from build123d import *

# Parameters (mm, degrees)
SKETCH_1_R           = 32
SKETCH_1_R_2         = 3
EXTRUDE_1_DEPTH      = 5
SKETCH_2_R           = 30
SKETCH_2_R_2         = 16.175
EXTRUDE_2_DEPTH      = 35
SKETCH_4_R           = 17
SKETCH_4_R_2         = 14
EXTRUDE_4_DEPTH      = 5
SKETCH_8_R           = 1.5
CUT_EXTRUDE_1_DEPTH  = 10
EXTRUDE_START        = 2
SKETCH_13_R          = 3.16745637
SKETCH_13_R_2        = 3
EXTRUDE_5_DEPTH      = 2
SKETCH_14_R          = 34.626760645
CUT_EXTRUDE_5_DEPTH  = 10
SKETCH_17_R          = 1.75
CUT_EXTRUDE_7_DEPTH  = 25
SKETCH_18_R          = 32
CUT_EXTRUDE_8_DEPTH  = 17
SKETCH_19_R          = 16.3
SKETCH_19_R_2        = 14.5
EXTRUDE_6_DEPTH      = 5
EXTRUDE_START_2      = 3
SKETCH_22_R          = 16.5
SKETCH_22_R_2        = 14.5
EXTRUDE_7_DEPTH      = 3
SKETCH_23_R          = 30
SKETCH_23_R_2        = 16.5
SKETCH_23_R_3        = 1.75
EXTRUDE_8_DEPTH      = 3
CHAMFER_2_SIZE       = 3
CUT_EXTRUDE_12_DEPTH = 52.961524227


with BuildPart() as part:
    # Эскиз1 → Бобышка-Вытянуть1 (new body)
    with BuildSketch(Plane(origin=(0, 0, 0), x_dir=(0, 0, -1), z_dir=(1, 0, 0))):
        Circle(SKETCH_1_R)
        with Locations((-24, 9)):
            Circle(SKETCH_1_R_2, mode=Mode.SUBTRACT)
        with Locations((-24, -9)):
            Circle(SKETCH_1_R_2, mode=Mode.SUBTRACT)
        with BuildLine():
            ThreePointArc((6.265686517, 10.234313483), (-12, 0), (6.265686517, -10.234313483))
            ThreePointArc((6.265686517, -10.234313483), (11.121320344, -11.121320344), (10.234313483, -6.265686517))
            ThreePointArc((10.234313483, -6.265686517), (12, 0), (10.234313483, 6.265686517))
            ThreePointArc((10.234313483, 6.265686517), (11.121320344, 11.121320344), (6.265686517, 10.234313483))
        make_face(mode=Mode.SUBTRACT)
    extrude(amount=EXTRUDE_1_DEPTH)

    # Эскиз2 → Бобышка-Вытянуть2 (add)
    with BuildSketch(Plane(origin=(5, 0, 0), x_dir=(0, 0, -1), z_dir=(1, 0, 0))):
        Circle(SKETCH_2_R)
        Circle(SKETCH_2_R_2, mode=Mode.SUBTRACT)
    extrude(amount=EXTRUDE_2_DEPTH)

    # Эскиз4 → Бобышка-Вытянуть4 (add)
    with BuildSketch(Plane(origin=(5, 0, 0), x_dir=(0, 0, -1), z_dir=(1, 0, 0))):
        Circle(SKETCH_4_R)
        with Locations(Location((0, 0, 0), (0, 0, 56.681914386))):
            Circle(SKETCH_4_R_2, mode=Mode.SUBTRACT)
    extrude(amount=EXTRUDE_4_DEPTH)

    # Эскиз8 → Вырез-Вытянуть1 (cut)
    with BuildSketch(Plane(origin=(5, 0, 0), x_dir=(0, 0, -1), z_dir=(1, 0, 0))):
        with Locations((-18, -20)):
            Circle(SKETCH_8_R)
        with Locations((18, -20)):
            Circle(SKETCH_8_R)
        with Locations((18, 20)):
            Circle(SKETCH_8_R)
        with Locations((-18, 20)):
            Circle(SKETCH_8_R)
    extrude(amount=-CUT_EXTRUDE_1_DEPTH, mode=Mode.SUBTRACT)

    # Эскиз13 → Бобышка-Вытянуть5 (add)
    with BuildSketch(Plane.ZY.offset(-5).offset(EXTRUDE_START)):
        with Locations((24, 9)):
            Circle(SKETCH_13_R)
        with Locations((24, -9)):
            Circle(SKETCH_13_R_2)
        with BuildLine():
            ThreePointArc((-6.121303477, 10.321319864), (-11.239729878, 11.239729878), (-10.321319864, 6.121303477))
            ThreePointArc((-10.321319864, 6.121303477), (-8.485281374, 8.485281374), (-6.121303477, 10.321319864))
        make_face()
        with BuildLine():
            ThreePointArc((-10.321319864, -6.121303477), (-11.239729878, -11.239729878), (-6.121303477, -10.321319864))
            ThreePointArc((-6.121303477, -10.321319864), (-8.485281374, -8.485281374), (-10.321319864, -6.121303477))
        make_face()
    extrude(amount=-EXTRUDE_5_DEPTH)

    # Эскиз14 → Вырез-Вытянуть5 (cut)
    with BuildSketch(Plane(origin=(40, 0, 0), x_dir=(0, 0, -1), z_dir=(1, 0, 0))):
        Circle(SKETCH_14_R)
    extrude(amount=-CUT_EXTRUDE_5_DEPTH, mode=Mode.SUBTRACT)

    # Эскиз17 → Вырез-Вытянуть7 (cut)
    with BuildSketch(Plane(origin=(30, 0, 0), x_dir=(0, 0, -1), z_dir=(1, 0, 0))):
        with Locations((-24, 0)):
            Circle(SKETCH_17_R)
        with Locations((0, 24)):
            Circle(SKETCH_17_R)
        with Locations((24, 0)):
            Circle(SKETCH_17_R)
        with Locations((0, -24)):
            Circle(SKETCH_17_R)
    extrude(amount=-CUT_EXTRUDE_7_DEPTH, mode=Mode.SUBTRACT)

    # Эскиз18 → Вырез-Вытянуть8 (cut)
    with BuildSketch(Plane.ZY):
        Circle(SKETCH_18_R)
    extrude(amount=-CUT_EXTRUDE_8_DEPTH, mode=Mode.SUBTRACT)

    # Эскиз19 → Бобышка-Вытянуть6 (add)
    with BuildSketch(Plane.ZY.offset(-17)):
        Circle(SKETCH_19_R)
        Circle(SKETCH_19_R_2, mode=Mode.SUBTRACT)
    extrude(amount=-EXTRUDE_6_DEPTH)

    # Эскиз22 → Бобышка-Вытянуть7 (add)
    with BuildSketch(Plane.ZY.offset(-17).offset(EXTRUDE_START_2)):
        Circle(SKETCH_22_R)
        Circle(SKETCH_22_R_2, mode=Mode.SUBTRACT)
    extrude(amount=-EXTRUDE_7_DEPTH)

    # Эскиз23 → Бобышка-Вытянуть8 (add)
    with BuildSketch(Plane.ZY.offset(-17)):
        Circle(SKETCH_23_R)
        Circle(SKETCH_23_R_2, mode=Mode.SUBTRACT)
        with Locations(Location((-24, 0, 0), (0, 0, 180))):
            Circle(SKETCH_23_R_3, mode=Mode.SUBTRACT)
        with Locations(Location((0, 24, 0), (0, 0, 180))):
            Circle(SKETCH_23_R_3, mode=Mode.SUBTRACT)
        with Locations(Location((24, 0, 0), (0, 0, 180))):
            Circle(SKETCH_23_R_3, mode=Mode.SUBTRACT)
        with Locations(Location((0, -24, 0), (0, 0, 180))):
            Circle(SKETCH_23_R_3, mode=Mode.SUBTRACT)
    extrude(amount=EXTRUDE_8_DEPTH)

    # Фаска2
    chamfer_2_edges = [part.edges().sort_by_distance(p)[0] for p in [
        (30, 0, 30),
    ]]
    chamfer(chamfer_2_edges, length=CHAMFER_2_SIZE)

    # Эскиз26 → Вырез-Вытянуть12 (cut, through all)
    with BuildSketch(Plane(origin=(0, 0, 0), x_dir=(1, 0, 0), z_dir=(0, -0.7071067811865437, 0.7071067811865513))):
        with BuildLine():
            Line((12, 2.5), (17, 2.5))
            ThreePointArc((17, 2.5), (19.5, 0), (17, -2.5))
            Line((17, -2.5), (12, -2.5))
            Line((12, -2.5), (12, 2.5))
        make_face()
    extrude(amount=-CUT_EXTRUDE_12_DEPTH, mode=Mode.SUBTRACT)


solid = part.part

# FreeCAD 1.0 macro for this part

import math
import FreeCAD as App
import Part
import Sketcher
from FreeCAD import Vector


def edges_at(feature, points):
    """Names of the edges that pass closest to the given points."""
    edges = feature.Shape.Edges
    near = lambda p: min(range(len(edges)), key=lambda i: edges[i].distToShape(Part.Vertex(*p))[0])
    return sorted({f"Edge{near(p) + 1}" for p in points})

doc = App.newDocument("Part")
body = doc.addObject("PartDesign::Body", "Body")

# Sketch on YZ plane
sketch1 = body.newObject("Sketcher::SketchObject", "Sketch")
sketch1.AttachmentSupport = (doc.getObject("YZ_Plane"), [""])
sketch1.MapMode = "FlatFace"
sketch1.addGeometry([
    Part.Circle(Vector(0, 0, 0), Vector(0, 0, 1), 32),  # 0
    Part.Circle(Vector(-9, 24, 0), Vector(0, 0, 1), 3),  # 1
    Part.Circle(Vector(9, 24, 0), Vector(0, 0, 1), 3),  # 2
    Part.ArcOfCircle(Part.Circle(Vector(0, 0, 0), Vector(0, 0, 1), 12), math.radians(-31), math.radians(211)),  # 3
    Part.ArcOfCircle(Part.Circle(Vector(9, -9, 0), Vector(0, 0, 1), 3), math.radians(-156), math.radians(66)),  # 4
    Part.ArcOfCircle(Part.Circle(Vector(0, 0, 0), Vector(0, 0, 1), 12), math.radians(-121), math.radians(-59)),  # 5
    Part.ArcOfCircle(Part.Circle(Vector(-9, -9, 0), Vector(0, 0, 1), 3), math.radians(114), math.radians(336)),  # 6
], False)
sketch1.addConstraint([
    Sketcher.Constraint("Coincident", 3, 1, 4, 2),
    Sketcher.Constraint("Coincident", 4, 1, 5, 2),
    Sketcher.Constraint("Coincident", 5, 1, 6, 2),
    Sketcher.Constraint("Coincident", 6, 1, 3, 2),
    Sketcher.Constraint("Coincident", 0, 3, -1, 1),
    Sketcher.Constraint("Coincident", 3, 3, -1, 1),
    Sketcher.Constraint("Coincident", 5, 3, -1, 1),
    Sketcher.Constraint("Equal", 1, 2),
    Sketcher.Constraint("Equal", 2, 4),
    Sketcher.Constraint("Equal", 3, 5),
    Sketcher.Constraint("Equal", 4, 6),
    Sketcher.Constraint("Symmetric", 1, 3, 2, 3, -2),
    Sketcher.Constraint("Symmetric", 4, 3, 6, 3, -2),
    Sketcher.Constraint("Vertical", 2, 3, 4, 3),
    Sketcher.Constraint("Diameter", 0, 64.0),
    Sketcher.Constraint("Diameter", 1, 6.0),
    Sketcher.Constraint("Radius", 3, 12.0),
    Sketcher.Constraint("DistanceX", 1, 3, -1, 1, 9.0),
    Sketcher.Constraint("DistanceY", -1, 1, 1, 3, 24.0),
    Sketcher.Constraint("DistanceY", 4, 3, -1, 1, 9.0),
])
pad1 = body.newObject("PartDesign::Pad", "Pad")
pad1.Profile = sketch1
pad1.Length = 5

# Sketch on YZ plane
sketch2 = body.newObject("Sketcher::SketchObject", "Sketch001")
sketch2.AttachmentSupport = (doc.getObject("YZ_Plane"), [""])
sketch2.MapMode = "FlatFace"
sketch2.AttachmentOffset = App.Placement(Vector(0, 0, 5), App.Rotation())
sketch2.addGeometry([
    Part.Circle(Vector(0, 0, 0), Vector(0, 0, 1), 30),
    Part.Circle(Vector(0, 0, 0), Vector(0, 0, 1), 16),
], False)
sketch2.addConstraint([
    Sketcher.Constraint("Coincident", 0, 3, -1, 1),
    Sketcher.Constraint("Coincident", 1, 3, -1, 1),
    Sketcher.Constraint("Diameter", 0, 60.0),
    Sketcher.Constraint("Diameter", 1, 32.35),
])
pad2 = body.newObject("PartDesign::Pad", "Pad001")
pad2.Profile = sketch2
pad2.Length = 35

# Sketch on YZ plane
sketch3 = body.newObject("Sketcher::SketchObject", "Sketch002")
sketch3.AttachmentSupport = (doc.getObject("YZ_Plane"), [""])
sketch3.MapMode = "FlatFace"
sketch3.AttachmentOffset = App.Placement(Vector(0, 0, 5), App.Rotation())
sketch3.addGeometry([
    Part.Circle(Vector(0, 0, 0), Vector(0, 0, 1), 17),
    Part.Circle(Vector(0, 0, 0), Vector(0, 0, 1), 14),
], False)
sketch3.addConstraint([
    Sketcher.Constraint("Coincident", 0, 3, -1, 1),
    Sketcher.Constraint("Coincident", 1, 3, -1, 1),
    Sketcher.Constraint("Diameter", 0, 34.0),
    Sketcher.Constraint("Diameter", 1, 28.0),
])
pad3 = body.newObject("PartDesign::Pad", "Pad002")
pad3.Profile = sketch3
pad3.Length = 5

# Sketch on YZ plane
sketch4 = body.newObject("Sketcher::SketchObject", "Sketch003")
sketch4.AttachmentSupport = (doc.getObject("YZ_Plane"), [""])
sketch4.MapMode = "FlatFace"
sketch4.AttachmentOffset = App.Placement(Vector(0, 0, 5), App.Rotation())
sketch4.addGeometry([
    Part.Circle(Vector(-20, 18, 0), Vector(0, 0, 1), 1.5),
    Part.Circle(Vector(-20, -18, 0), Vector(0, 0, 1), 1.5),
    Part.Circle(Vector(20, -18, 0), Vector(0, 0, 1), 1.5),
    Part.Circle(Vector(20, 18, 0), Vector(0, 0, 1), 1.5),
], False)
sketch4.addConstraint([
    Sketcher.Constraint("Equal", 0, 1),
    Sketcher.Constraint("Equal", 1, 2),
    Sketcher.Constraint("Equal", 2, 3),
    Sketcher.Constraint("Symmetric", 0, 3, 2, 3, -1, 1),
    Sketcher.Constraint("Symmetric", 1, 3, 3, 3, -1, 1),
    Sketcher.Constraint("Symmetric", 1, 3, 2, 3, -2),
    Sketcher.Constraint("Diameter", 0, 3.0),
    Sketcher.Constraint("DistanceX", 0, 3, -1, 1, 20.0),
    Sketcher.Constraint("DistanceY", -1, 1, 0, 3, 18.0),
])
pocket1 = body.newObject("PartDesign::Pocket", "Pocket")
pocket1.Profile = sketch4
pocket1.Length = 10

# Sketch on YZ plane
sketch5 = body.newObject("Sketcher::SketchObject", "Sketch004")
sketch5.AttachmentSupport = (doc.getObject("YZ_Plane"), [""])
sketch5.MapMode = "FlatFace"
sketch5.AttachmentOffset = App.Placement(Vector(0, 0, 3), App.Rotation())
sketch5.addGeometry([
    Part.Circle(Vector(9, 24, 0), Vector(0, 0, 1), 3.2),  # 0
    Part.Circle(Vector(-9, 24, 0), Vector(0, 0, 1), 3),  # 1
    Part.ArcOfCircle(Part.Circle(Vector(9, -9, 0), Vector(0, 0, 1), 3.2), math.radians(-155), math.radians(65)),  # 2
    Part.ArcOfCircle(Part.Circle(Vector(0, 0, 0), Vector(0, 0, 1), 12), math.radians(-59), math.radians(-31)),  # 3
    Part.ArcOfCircle(Part.Circle(Vector(-9, -9, 0), Vector(0, 0, 1), 3.2), math.radians(115), math.radians(335)),  # 4
    Part.ArcOfCircle(Part.Circle(Vector(0, 0, 0), Vector(0, 0, 1), 12), math.radians(-149), math.radians(-121)),  # 5
], False)
sketch5.addConstraint([
    Sketcher.Constraint("Coincident", 2, 1, 3, 1),
    Sketcher.Constraint("Coincident", 3, 2, 2, 2),
    Sketcher.Constraint("Coincident", 4, 1, 5, 1),
    Sketcher.Constraint("Coincident", 5, 2, 4, 2),
    Sketcher.Constraint("Coincident", 3, 3, -1, 1),
    Sketcher.Constraint("Coincident", 5, 3, -1, 1),
    Sketcher.Constraint("Equal", 0, 2),
    Sketcher.Constraint("Equal", 2, 4),
    Sketcher.Constraint("Equal", 3, 5),
    Sketcher.Constraint("Symmetric", 0, 3, 1, 3, -2),
    Sketcher.Constraint("Symmetric", 2, 3, 4, 3, -2),
    Sketcher.Constraint("Vertical", 0, 3, 2, 3),
    Sketcher.Constraint("Diameter", 1, 6.0),
    Sketcher.Constraint("Radius", 3, 12.0),
    Sketcher.Constraint("DistanceX", -1, 1, 0, 3, 9.0),
    Sketcher.Constraint("DistanceY", -1, 1, 0, 3, 24.0),
    Sketcher.Constraint("DistanceY", 2, 3, -1, 1, 9.0),
    Sketcher.Constraint("Diameter", 0, 6.334913),
])
pad4 = body.newObject("PartDesign::Pad", "Pad003")
pad4.Profile = sketch5
pad4.Length = 2

# Sketch on YZ plane
sketch6 = body.newObject("Sketcher::SketchObject", "Sketch005")
sketch6.AttachmentSupport = (doc.getObject("YZ_Plane"), [""])
sketch6.MapMode = "FlatFace"
sketch6.AttachmentOffset = App.Placement(Vector(0, 0, 40), App.Rotation())
sketch6.addGeometry(Part.Circle(Vector(0, 0, 0), Vector(0, 0, 1), 35), False)
sketch6.addConstraint([
    Sketcher.Constraint("Coincident", 0, 3, -1, 1),
    Sketcher.Constraint("Diameter", 0, 69.253521),
])
pocket2 = body.newObject("PartDesign::Pocket", "Pocket001")
pocket2.Profile = sketch6
pocket2.Length = 10

# Sketch on YZ plane
sketch7 = body.newObject("Sketcher::SketchObject", "Sketch006")
sketch7.AttachmentSupport = (doc.getObject("YZ_Plane"), [""])
sketch7.MapMode = "FlatFace"
sketch7.AttachmentOffset = App.Placement(Vector(0, 0, 30), App.Rotation())
sketch7.addGeometry([
    Part.Circle(Vector(0, 24, 0), Vector(0, 0, 1), 1.8),
    Part.Circle(Vector(24, 0, 0), Vector(0, 0, 1), 1.8),
    Part.Circle(Vector(0, -24, 0), Vector(0, 0, 1), 1.8),
    Part.Circle(Vector(-24, 0, 0), Vector(0, 0, 1), 1.8),
], False)
sketch7.addConstraint([
    Sketcher.Constraint("Equal", 0, 1),
    Sketcher.Constraint("Equal", 1, 2),
    Sketcher.Constraint("Equal", 2, 3),
    Sketcher.Constraint("Symmetric", 0, 3, 2, 3, -1, 1),
    Sketcher.Constraint("Symmetric", 1, 3, 3, 3, -1, 1),
    Sketcher.Constraint("PointOnObject", 0, 3, -2),
    Sketcher.Constraint("PointOnObject", 1, 3, -1),
    Sketcher.Constraint("Diameter", 0, 3.5),
    Sketcher.Constraint("DistanceY", -1, 1, 0, 3, 24.0),
    Sketcher.Constraint("DistanceX", -1, 1, 1, 3, 24.0),
])
pocket3 = body.newObject("PartDesign::Pocket", "Pocket002")
pocket3.Profile = sketch7
pocket3.Length = 25

# Sketch on YZ plane
sketch8 = body.newObject("Sketcher::SketchObject", "Sketch007")
sketch8.AttachmentSupport = (doc.getObject("YZ_Plane"), [""])
sketch8.MapMode = "FlatFace"
sketch8.addGeometry(Part.Circle(Vector(0, 0, 0), Vector(0, 0, 1), 32), False)
sketch8.addConstraint([
    Sketcher.Constraint("Coincident", 0, 3, -1, 1),
    Sketcher.Constraint("Diameter", 0, 64.0),
])
pocket4 = body.newObject("PartDesign::Pocket", "Pocket003")
pocket4.Profile = sketch8
pocket4.Length = 17
pocket4.Reversed = True

# Sketch on YZ plane
sketch9 = body.newObject("Sketcher::SketchObject", "Sketch008")
sketch9.AttachmentSupport = (doc.getObject("YZ_Plane"), [""])
sketch9.MapMode = "FlatFace"
sketch9.AttachmentOffset = App.Placement(Vector(0, 0, 17), App.Rotation())
sketch9.addGeometry([
    Part.Circle(Vector(0, 0, 0), Vector(0, 0, 1), 16),
    Part.Circle(Vector(0, 0, 0), Vector(0, 0, 1), 14),
], False)
sketch9.addConstraint([
    Sketcher.Constraint("Coincident", 0, 3, -1, 1),
    Sketcher.Constraint("Coincident", 1, 3, -1, 1),
    Sketcher.Constraint("Diameter", 1, 29.0),
    Sketcher.Constraint("Diameter", 0, 32.6),
])
pad5 = body.newObject("PartDesign::Pad", "Pad004")
pad5.Profile = sketch9
pad5.Length = 5

# Sketch on YZ plane
sketch10 = body.newObject("Sketcher::SketchObject", "Sketch009")
sketch10.AttachmentSupport = (doc.getObject("YZ_Plane"), [""])
sketch10.MapMode = "FlatFace"
sketch10.AttachmentOffset = App.Placement(Vector(0, 0, 14), App.Rotation())
sketch10.addGeometry([
    Part.Circle(Vector(0, 0, 0), Vector(0, 0, 1), 16),
    Part.Circle(Vector(0, 0, 0), Vector(0, 0, 1), 14),
], False)
sketch10.addConstraint([
    Sketcher.Constraint("Coincident", 0, 3, -1, 1),
    Sketcher.Constraint("Coincident", 1, 3, -1, 1),
    Sketcher.Constraint("Diameter", 0, 33.0),
    Sketcher.Constraint("Diameter", 1, 29.0),
])
pad6 = body.newObject("PartDesign::Pad", "Pad005")
pad6.Profile = sketch10
pad6.Length = 3

# Sketch on YZ plane
sketch11 = body.newObject("Sketcher::SketchObject", "Sketch010")
sketch11.AttachmentSupport = (doc.getObject("YZ_Plane"), [""])
sketch11.MapMode = "FlatFace"
sketch11.AttachmentOffset = App.Placement(Vector(0, 0, 17), App.Rotation())
sketch11.addGeometry([
    Part.Circle(Vector(0, 0, 0), Vector(0, 0, 1), 30),  # 0
    Part.Circle(Vector(-24, 0, 0), Vector(0, 0, 1), 1.8),  # 1
    Part.Circle(Vector(0, -24, 0), Vector(0, 0, 1), 1.8),  # 2
    Part.Circle(Vector(0, 0, 0), Vector(0, 0, 1), 16.5),  # 3
    Part.Circle(Vector(0, 24, 0), Vector(0, 0, 1), 1.8),  # 4
    Part.Circle(Vector(24, 0, 0), Vector(0, 0, 1), 1.8),  # 5
], False)
sketch11.addConstraint([
    Sketcher.Constraint("Coincident", 0, 3, -1, 1),
    Sketcher.Constraint("Coincident", 3, 3, -1, 1),
    Sketcher.Constraint("Equal", 1, 2),
    Sketcher.Constraint("Equal", 2, 4),
    Sketcher.Constraint("Equal", 4, 5),
    Sketcher.Constraint("Symmetric", 2, 3, 4, 3, -1, 1),
    Sketcher.Constraint("Symmetric", 1, 3, 5, 3, -1, 1),
    Sketcher.Constraint("PointOnObject", 1, 3, -1),
    Sketcher.Constraint("PointOnObject", 2, 3, -2),
    Sketcher.Constraint("Diameter", 0, 60.0),
    Sketcher.Constraint("Diameter", 3, 33.0),
    Sketcher.Constraint("Diameter", 1, 3.5),
    Sketcher.Constraint("DistanceX", 1, 3, -1, 1, 24.0),
    Sketcher.Constraint("DistanceY", 2, 3, -1, 1, 24.0),
])
pad7 = body.newObject("PartDesign::Pad", "Pad006")
pad7.Profile = sketch11
pad7.Length = 3
pad7.Reversed = True
doc.recompute()

chamfer = body.newObject("PartDesign::Chamfer", "Chamfer")
chamfer.Base = (pad7, edges_at(pad7, [(30, 0, 30)]))
chamfer.Size = 3

# Sketch on an angled plane
sketch12 = body.newObject("Sketcher::SketchObject", "Sketch011")
sketch12.Placement = App.Placement(Vector(0, 0, 0), App.Rotation(Vector(1, 0, 0), Vector(0, 0.707106781, 0.707106781), Vector(0, -0.707106781, 0.707106781), "ZXY"))
sketch12.addGeometry([
    Part.LineSegment(Vector(17, 2.5, 0), Vector(12, 2.5, 0)),
    Part.LineSegment(Vector(12, 2.5, 0), Vector(12, -2.5, 0)),
    Part.LineSegment(Vector(12, -2.5, 0), Vector(17, -2.5, 0)),
    Part.ArcOfCircle(Part.Circle(Vector(17, 0, 0), Vector(0, 0, 1), 2.5), math.radians(-90), math.radians(90)),
], False)
sketch12.addConstraint([
    Sketcher.Constraint("Coincident", 0, 2, 1, 1),
    Sketcher.Constraint("Coincident", 1, 2, 2, 1),
    Sketcher.Constraint("Tangent", 2, 2, 3, 1),
    Sketcher.Constraint("Tangent", 3, 2, 0, 1),
    Sketcher.Constraint("Horizontal", 0),
    Sketcher.Constraint("Vertical", 1),
    Sketcher.Constraint("Horizontal", 2),
    Sketcher.Constraint("PointOnObject", 3, 3, -1),
    Sketcher.Constraint("Equal", 2, 1),
    Sketcher.Constraint("Radius", 3, 2.5),
    Sketcher.Constraint("DistanceX", -1, 1, 3, 3, 17.0),
])
pocket5 = body.newObject("PartDesign::Pocket", "Pocket004")
pocket5.Profile = sketch12
pocket5.Type = "ThroughAll"

doc.recompute()
